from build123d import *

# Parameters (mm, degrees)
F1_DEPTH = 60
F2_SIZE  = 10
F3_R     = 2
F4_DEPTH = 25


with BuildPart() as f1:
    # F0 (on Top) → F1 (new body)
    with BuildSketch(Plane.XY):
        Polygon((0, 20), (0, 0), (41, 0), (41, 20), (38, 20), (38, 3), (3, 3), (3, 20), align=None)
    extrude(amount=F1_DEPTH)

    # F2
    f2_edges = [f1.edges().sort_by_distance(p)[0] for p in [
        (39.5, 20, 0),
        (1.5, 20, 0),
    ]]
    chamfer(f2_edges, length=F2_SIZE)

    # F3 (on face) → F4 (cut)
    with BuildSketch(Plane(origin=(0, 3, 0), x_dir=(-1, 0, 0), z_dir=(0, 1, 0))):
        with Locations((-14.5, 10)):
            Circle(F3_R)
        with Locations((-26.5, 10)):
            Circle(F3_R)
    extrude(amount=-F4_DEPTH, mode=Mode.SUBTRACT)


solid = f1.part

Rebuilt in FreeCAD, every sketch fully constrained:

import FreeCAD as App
import Part
import Sketcher

V = App.Vector
Q = App.Units.Quantity


def edges_at(feature, points):
    """Names of the edges that pass closest to the given points."""
    edges = feature.Shape.Edges
    near = lambda p: min(range(len(edges)), key=lambda i: edges[i].distToShape(Part.Vertex(*p))[0])
    return sorted({f"Edge{near(p) + 1}" for p in points})


def add_polygon(sketch, points):
    """Adds a closed chain of lines whose ends are joined by coincident constraints."""
    first, n = sketch.GeometryCount, len(points)
    for a, b in zip(points, points[1:] + points[:1]):
        sketch.addGeometry(Part.LineSegment(App.Vector(*a, 0), App.Vector(*b, 0)), False)
    for i in range(n):
        sketch.addConstraint(Sketcher.Constraint("Coincident", first + i, 2, first + (i + 1) % n, 1))

doc = App.newDocument("Part")
params = doc.addObject("Spreadsheet::Sheet", "Params")
for row, (alias, value) in enumerate([
    ("sketch1_width", "41 mm"),
    ("sketch1_width2", "3 mm"),
    ("sketch1_height", "20 mm"),
    ("sketch1_height2", "17 mm"),
    ("pad1_length", "60 mm"),
    ("chamfer_size", "10 mm"),
    ("sketch2_diameter", "4 mm"),
    ("pocket1_length", "25 mm"),
], start=1):
    params.set(f"A{row}", alias)
    params.set(f"B{row}", "=" + value)
    params.setAlias(f"B{row}", alias)

body = doc.addObject("PartDesign::Body", "Body")

# Sketch on XY plane
sketch1 = body.newObject("Sketcher::SketchObject", "Sketch")
sketch1.AttachmentSupport = (doc.getObject("XY_Plane"), [""])
sketch1.MapMode = "FlatFace"
add_polygon(sketch1, [(0, 20), (0, 0), (41, 0), (41, 20), (38, 20), (38, 3), (3, 3), (3, 20)])  # lines 0-7
sketch1.addConstraint([
    Sketcher.Constraint("Vertical", 0),
    Sketcher.Constraint("Horizontal", 1),
    Sketcher.Constraint("Vertical", 2),
    Sketcher.Constraint("Horizontal", 3),
    Sketcher.Constraint("Vertical", 4),
    Sketcher.Constraint("Horizontal", 5),
    Sketcher.Constraint("Vertical", 6),
    Sketcher.Constraint("Horizontal", 7),
    Sketcher.Constraint("Coincident", 0, 2, -1, 1),
    Sketcher.Constraint("Horizontal", 3, 2, 6, 2),
    Sketcher.Constraint("Equal", 3, 7),
    Sketcher.Constraint("DistanceX", 1, 1, 1, 2, Q("41 mm")),
    Sketcher.Constraint("DistanceX", 3, 2, 3, 1, Q("3 mm")),
    Sketcher.Constraint("DistanceY", 0, 2, 0, 1, Q("20 mm")),
    Sketcher.Constraint("DistanceY", 4, 2, 4, 1, Q("17 mm")),
])
sketch1.setExpression("Constraints[19]", "Params.sketch1_width")
sketch1.setExpression("Constraints[20]", "Params.sketch1_width2")
sketch1.setExpression("Constraints[21]", "Params.sketch1_height")
sketch1.setExpression("Constraints[22]", "Params.sketch1_height2")
pad1 = body.newObject("PartDesign::Pad", "Pad")
pad1.Profile = sketch1
pad1.setExpression("Length", "Params.pad1_length")
doc.recompute()

chamfer = body.newObject("PartDesign::Chamfer", "Chamfer")
chamfer.Base = (pad1, edges_at(pad1, [(39.5, 20, 0), (1.5, 20, 0)]))
chamfer.setExpression("Size", "Params.chamfer_size")

# Sketch on XZ plane
sketch2 = body.newObject("Sketcher::SketchObject", "Sketch001")
sketch2.AttachmentSupport = (doc.getObject("XZ_Plane"), [""])
sketch2.MapMode = "FlatFace"
sketch2.AttachmentOffset = App.Placement(V(0, 0, -3), App.Rotation())
sketch2.addGeometry([
    Part.Circle(V(14.5, 10, 0), V(0, 0, 1), 2),
    Part.Circle(V(26.5, 10, 0), V(0, 0, 1), 2),
], False)
sketch2.addConstraint([
    Sketcher.Constraint("Equal", 0, 1),
    Sketcher.Constraint("Horizontal", 0, 3, 1, 3),
    Sketcher.Constraint("Diameter", 0, Q("4 mm")),
    Sketcher.Constraint("DistanceY", -1, 1, 0, 3, Q("10 mm")),
    Sketcher.Constraint("DistanceX", 0, 3, 1, 3, Q("12 mm")),
    Sketcher.Constraint("DistanceX", -1, 1, 0, 3, Q("14.5 mm")),
])
sketch2.setExpression("Constraints[2]", "Params.sketch2_diameter")
pocket1 = body.newObject("PartDesign::Pocket", "Pocket")
pocket1.Profile = sketch2
pocket1.setExpression("Length", "Params.pocket1_length")
pocket1.Reversed = True

doc.recompute()
